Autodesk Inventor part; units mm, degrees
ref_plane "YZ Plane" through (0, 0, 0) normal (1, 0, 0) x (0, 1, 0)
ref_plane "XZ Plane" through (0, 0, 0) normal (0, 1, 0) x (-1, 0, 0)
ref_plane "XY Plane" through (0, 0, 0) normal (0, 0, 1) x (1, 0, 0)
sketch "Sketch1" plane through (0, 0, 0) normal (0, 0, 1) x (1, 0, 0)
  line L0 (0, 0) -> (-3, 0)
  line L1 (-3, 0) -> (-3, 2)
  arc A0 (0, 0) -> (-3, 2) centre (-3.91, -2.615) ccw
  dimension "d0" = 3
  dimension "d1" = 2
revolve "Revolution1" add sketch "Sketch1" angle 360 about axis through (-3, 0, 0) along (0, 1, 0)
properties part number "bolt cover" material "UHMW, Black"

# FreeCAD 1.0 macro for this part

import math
import FreeCAD as App
import Part
import Sketcher
from FreeCAD import Vector
Q = App.Units.Quantity

doc = App.newDocument("Part")
body = doc.addObject("PartDesign::Body", "Body")

# Sketch on XY plane
sketch1 = body.newObject("Sketcher::SketchObject", "Sketch")
sketch1.AttachmentSupport = (doc.getObject("XY_Plane"), [""])
sketch1.MapMode = "FlatFace"
sketch1.addGeometry([
    Part.LineSegment(Vector(-3, 0, 0), Vector(0, 0, 0)),
    Part.ArcOfCircle(Part.Circle(Vector(-3.91, -2.615, 0), Vector(0, 0, 1), 4.703863), math.radians(33.774525), math.radians(78.84534)),
    Part.LineSegment(Vector(-3, 2, 0), Vector(-3, 0, 0)),
], False)
sketch1.addGeometry(Part.LineSegment(Vector(-3, -2.615, 0), Vector(-3, 2, 0)), True)  # axis
sketch1.addConstraint([
    Sketcher.Constraint("Coincident", 0, 2, 1, 1),
    Sketcher.Constraint("Coincident", 1, 2, 2, 1),
    Sketcher.Constraint("Coincident", 2, 2, 0, 1),
    Sketcher.Constraint("Horizontal", 0),
    Sketcher.Constraint("Vertical", 2),
    Sketcher.Constraint("Vertical", 3),
    Sketcher.Constraint("Coincident", 0, 2, -1, 1),
    Sketcher.Constraint("Coincident", 3, 2, 1, 2),
    Sketcher.Constraint("Horizontal", 1, 3, 3, 1),
    Sketcher.Constraint("DistanceX", 0, 1, 0, 2, Q("3 mm")),
    Sketcher.Constraint("DistanceY", 2, 2, 2, 1, Q("2 mm")),
    Sketcher.Constraint("Radius", 1, Q("4.7039 mm")),
])
revolution = body.newObject("PartDesign::Revolution", "Revolution")
revolution.Profile = sketch1
revolution.ReferenceAxis = (sketch1, ["Axis0"])
revolution.Angle = 360

doc.recompute()
